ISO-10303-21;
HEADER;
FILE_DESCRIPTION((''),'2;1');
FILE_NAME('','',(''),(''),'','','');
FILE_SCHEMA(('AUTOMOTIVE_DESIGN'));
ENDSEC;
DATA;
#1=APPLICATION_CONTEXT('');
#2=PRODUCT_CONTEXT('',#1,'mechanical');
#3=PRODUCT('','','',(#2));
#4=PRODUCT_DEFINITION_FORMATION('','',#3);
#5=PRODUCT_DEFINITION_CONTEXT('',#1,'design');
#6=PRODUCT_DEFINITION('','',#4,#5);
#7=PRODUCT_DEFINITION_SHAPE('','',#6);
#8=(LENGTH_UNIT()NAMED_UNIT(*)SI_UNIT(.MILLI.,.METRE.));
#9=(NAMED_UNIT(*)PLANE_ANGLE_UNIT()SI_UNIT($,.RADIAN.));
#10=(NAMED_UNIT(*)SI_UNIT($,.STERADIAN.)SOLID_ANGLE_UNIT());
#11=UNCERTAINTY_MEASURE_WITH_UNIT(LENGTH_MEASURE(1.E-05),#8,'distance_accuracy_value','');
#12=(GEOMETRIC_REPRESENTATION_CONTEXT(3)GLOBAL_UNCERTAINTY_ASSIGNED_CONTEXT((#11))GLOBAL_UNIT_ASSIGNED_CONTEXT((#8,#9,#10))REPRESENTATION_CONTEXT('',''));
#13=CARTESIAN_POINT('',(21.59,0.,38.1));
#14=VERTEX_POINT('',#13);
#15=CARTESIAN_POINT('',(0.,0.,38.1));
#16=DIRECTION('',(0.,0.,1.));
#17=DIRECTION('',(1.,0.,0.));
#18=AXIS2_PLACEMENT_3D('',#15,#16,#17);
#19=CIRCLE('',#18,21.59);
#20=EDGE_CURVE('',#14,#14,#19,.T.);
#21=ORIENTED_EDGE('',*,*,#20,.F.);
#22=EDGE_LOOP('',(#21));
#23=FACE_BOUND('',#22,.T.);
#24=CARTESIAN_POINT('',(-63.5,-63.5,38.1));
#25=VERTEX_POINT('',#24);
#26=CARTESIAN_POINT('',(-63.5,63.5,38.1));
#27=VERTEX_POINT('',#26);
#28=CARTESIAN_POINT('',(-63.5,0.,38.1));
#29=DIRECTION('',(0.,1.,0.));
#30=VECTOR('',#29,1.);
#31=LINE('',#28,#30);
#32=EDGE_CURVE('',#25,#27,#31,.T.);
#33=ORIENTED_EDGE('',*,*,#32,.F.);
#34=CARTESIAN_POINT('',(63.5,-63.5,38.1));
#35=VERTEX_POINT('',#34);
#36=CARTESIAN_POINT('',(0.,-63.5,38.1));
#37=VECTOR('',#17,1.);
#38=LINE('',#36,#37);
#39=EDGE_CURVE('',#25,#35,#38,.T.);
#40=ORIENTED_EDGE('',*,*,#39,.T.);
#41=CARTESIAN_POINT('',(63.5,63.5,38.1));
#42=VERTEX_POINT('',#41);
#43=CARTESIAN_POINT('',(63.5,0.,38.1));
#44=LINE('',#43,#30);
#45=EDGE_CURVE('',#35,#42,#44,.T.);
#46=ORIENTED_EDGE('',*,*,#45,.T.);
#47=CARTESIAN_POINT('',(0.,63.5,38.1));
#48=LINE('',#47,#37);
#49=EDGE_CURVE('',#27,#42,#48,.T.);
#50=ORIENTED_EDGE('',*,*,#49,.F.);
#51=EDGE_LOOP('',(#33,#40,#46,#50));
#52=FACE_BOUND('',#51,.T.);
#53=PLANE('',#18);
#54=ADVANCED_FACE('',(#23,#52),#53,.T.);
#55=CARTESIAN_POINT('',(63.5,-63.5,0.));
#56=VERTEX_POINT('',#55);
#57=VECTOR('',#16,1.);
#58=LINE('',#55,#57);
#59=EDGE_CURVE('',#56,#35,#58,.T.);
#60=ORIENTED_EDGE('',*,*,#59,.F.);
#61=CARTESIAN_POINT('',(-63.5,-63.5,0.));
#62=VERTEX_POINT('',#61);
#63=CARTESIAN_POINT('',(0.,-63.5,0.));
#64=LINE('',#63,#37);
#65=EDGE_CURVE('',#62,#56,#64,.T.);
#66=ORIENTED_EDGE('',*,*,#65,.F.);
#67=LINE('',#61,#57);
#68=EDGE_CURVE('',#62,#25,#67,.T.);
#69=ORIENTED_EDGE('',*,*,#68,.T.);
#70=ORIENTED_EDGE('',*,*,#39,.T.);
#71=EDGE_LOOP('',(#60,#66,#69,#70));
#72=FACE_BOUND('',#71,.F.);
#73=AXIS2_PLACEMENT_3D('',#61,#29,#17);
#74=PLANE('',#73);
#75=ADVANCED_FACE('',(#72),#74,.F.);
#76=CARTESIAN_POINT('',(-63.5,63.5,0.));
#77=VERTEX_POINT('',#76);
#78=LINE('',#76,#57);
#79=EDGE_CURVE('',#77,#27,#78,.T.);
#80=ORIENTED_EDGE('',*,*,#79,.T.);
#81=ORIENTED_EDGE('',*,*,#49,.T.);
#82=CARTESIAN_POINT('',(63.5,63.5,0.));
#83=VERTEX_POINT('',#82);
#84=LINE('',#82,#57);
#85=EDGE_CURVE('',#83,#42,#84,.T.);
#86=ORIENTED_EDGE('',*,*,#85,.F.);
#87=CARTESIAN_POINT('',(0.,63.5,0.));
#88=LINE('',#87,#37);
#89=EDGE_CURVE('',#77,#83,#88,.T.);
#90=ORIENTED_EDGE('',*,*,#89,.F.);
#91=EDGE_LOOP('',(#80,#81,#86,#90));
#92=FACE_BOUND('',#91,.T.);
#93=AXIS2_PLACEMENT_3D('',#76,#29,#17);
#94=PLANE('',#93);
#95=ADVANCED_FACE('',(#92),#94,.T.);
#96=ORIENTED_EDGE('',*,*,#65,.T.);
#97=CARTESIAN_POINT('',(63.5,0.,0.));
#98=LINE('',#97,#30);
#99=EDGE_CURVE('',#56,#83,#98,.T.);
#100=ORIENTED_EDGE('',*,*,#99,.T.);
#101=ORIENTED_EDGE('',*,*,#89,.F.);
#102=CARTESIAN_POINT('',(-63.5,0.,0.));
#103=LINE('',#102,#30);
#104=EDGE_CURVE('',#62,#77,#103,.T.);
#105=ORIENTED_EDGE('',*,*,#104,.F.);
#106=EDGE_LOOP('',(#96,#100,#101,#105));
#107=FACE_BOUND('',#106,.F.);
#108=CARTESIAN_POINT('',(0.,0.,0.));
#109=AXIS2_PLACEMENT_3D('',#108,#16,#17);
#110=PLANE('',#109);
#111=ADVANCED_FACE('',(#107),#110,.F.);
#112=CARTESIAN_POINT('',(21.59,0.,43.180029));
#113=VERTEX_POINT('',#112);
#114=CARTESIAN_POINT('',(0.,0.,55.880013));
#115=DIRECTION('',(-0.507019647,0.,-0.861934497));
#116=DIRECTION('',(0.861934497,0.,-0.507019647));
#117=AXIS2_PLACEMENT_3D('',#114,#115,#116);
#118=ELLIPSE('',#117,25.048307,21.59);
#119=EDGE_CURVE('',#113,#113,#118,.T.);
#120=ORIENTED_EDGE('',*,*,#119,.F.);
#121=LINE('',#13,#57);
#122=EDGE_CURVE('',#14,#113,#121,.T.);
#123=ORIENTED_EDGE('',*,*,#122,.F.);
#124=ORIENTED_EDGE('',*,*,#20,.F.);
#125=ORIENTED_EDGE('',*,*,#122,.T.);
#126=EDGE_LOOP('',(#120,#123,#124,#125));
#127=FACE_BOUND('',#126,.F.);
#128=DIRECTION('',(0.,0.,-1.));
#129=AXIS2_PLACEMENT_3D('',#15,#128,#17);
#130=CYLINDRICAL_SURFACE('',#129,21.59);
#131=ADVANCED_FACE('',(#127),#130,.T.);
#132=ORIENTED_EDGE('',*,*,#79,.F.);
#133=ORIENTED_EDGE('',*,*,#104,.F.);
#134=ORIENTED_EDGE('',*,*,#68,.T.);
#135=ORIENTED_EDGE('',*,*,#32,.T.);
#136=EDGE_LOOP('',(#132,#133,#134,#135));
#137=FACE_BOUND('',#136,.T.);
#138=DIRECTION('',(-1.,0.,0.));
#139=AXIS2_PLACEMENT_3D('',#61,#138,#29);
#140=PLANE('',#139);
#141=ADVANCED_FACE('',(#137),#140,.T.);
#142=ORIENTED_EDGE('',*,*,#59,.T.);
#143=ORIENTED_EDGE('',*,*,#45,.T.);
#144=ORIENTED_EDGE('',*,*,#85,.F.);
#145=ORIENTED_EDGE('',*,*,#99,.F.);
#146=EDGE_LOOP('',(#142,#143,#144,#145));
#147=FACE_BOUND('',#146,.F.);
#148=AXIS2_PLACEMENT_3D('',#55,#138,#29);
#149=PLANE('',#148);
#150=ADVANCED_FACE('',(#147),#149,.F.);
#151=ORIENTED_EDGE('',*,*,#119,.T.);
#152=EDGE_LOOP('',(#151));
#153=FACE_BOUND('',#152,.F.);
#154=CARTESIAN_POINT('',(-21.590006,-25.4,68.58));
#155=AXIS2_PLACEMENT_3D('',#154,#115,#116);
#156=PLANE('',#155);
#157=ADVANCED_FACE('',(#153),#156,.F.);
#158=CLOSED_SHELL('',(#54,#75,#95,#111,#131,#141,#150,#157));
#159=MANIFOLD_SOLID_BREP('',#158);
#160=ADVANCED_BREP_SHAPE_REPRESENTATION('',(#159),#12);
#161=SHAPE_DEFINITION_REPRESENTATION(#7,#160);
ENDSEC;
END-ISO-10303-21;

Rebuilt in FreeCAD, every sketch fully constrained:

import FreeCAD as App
import Part
import Sketcher
Q = App.Units.Quantity

doc = App.newDocument("Part")
body = doc.addObject("PartDesign::Body", "Body")

# Sketch on XY plane
sketch1 = body.newObject("Sketcher::SketchObject", "Sketch")
sketch1.AttachmentSupport = (doc.getObject("XY_Plane"), [""])
sketch1.MapMode = "FlatFace"
sketch1.addGeometry([
    Part.LineSegment(App.Vector(-64, 64, 0), App.Vector(-64, -64, 0)),
    Part.LineSegment(App.Vector(-64, -64, 0), App.Vector(64, -64, 0)),
    Part.LineSegment(App.Vector(64, -64, 0), App.Vector(64, 64, 0)),
    Part.LineSegment(App.Vector(64, 64, 0), App.Vector(-64, 64, 0)),
], False)
sketch1.addConstraint([
    Sketcher.Constraint("Coincident", 0, 2, 1, 1),
    Sketcher.Constraint("Coincident", 1, 2, 2, 1),
    Sketcher.Constraint("Coincident", 2, 2, 3, 1),
    Sketcher.Constraint("Coincident", 3, 2, 0, 1),
    Sketcher.Constraint("Vertical", 0),
    Sketcher.Constraint("Horizontal", 1),
    Sketcher.Constraint("Vertical", 2),
    Sketcher.Constraint("Horizontal", 3),
    Sketcher.Constraint("Symmetric", 0, 2, 2, 2, -1, 1),
    Sketcher.Constraint("Equal", 3, 0),
    Sketcher.Constraint("DistanceX", 1, 1, 1, 2, Q("5 in")),
])
pad1 = body.newObject("PartDesign::Pad", "Pad")
pad1.Profile = sketch1
pad1.Length = Q("1.5 in")

# Sketch on XY plane
sketch2 = body.newObject("Sketcher::SketchObject", "Sketch001")
sketch2.AttachmentSupport = (doc.getObject("XY_Plane"), [""])
sketch2.MapMode = "FlatFace"
sketch2.AttachmentOffset = App.Placement(App.Vector(0, 0, 1.5 * 25.4), App.Rotation())
sketch2.addGeometry(Part.Circle(App.Vector(0, 0, 0), App.Vector(0, 0, 1), 22), False)
sketch2.addConstraint([
    Sketcher.Constraint("Coincident", 0, 3, -1, 1),
    Sketcher.Constraint("Diameter", 0, Q("1.7 in")),
])
pad2 = body.newObject("PartDesign::Pad", "Pad001")
pad2.Profile = sketch2
pad2.Length = Q("1.2 in")

# Sketch on XZ plane
sketch3 = body.newObject("Sketcher::SketchObject", "Sketch002")
sketch3.AttachmentSupport = (doc.getObject("XZ_Plane"), [""])
sketch3.MapMode = "FlatFace"
sketch3.AttachmentOffset = App.Placement(App.Vector(0, 0, 1 * 25.4), App.Rotation())
sketch3.addGeometry([
    Part.LineSegment(App.Vector(22, 69, 0), App.Vector(-22, 69, 0)),
    Part.LineSegment(App.Vector(-22, 69, 0), App.Vector(22, 43, 0)),
    Part.LineSegment(App.Vector(22, 43, 0), App.Vector(22, 69, 0)),
], False)
sketch3.addConstraint([
    Sketcher.Constraint("Coincident", 0, 2, 1, 1),
    Sketcher.Constraint("Coincident", 1, 2, 2, 1),
    Sketcher.Constraint("Coincident", 2, 2, 0, 1),
    Sketcher.Constraint("Horizontal", 0),
    Sketcher.Constraint("Vertical", 2),
    Sketcher.Constraint("DistanceY", 2, 1, 2, 2, Q("1 in")),
    Sketcher.Constraint("DistanceY", -1, 1, 0, 2, Q("2.7 in")),
    Sketcher.Constraint("Distance", 1, 50.096678),
    Sketcher.Constraint("DistanceX", -1, 1, 1, 2, 21.590049),
])
pocket1 = body.newObject("PartDesign::Pocket", "Pocket")
pocket1.Profile = sketch3
pocket1.Length = Q("50 in")

doc.recompute()
